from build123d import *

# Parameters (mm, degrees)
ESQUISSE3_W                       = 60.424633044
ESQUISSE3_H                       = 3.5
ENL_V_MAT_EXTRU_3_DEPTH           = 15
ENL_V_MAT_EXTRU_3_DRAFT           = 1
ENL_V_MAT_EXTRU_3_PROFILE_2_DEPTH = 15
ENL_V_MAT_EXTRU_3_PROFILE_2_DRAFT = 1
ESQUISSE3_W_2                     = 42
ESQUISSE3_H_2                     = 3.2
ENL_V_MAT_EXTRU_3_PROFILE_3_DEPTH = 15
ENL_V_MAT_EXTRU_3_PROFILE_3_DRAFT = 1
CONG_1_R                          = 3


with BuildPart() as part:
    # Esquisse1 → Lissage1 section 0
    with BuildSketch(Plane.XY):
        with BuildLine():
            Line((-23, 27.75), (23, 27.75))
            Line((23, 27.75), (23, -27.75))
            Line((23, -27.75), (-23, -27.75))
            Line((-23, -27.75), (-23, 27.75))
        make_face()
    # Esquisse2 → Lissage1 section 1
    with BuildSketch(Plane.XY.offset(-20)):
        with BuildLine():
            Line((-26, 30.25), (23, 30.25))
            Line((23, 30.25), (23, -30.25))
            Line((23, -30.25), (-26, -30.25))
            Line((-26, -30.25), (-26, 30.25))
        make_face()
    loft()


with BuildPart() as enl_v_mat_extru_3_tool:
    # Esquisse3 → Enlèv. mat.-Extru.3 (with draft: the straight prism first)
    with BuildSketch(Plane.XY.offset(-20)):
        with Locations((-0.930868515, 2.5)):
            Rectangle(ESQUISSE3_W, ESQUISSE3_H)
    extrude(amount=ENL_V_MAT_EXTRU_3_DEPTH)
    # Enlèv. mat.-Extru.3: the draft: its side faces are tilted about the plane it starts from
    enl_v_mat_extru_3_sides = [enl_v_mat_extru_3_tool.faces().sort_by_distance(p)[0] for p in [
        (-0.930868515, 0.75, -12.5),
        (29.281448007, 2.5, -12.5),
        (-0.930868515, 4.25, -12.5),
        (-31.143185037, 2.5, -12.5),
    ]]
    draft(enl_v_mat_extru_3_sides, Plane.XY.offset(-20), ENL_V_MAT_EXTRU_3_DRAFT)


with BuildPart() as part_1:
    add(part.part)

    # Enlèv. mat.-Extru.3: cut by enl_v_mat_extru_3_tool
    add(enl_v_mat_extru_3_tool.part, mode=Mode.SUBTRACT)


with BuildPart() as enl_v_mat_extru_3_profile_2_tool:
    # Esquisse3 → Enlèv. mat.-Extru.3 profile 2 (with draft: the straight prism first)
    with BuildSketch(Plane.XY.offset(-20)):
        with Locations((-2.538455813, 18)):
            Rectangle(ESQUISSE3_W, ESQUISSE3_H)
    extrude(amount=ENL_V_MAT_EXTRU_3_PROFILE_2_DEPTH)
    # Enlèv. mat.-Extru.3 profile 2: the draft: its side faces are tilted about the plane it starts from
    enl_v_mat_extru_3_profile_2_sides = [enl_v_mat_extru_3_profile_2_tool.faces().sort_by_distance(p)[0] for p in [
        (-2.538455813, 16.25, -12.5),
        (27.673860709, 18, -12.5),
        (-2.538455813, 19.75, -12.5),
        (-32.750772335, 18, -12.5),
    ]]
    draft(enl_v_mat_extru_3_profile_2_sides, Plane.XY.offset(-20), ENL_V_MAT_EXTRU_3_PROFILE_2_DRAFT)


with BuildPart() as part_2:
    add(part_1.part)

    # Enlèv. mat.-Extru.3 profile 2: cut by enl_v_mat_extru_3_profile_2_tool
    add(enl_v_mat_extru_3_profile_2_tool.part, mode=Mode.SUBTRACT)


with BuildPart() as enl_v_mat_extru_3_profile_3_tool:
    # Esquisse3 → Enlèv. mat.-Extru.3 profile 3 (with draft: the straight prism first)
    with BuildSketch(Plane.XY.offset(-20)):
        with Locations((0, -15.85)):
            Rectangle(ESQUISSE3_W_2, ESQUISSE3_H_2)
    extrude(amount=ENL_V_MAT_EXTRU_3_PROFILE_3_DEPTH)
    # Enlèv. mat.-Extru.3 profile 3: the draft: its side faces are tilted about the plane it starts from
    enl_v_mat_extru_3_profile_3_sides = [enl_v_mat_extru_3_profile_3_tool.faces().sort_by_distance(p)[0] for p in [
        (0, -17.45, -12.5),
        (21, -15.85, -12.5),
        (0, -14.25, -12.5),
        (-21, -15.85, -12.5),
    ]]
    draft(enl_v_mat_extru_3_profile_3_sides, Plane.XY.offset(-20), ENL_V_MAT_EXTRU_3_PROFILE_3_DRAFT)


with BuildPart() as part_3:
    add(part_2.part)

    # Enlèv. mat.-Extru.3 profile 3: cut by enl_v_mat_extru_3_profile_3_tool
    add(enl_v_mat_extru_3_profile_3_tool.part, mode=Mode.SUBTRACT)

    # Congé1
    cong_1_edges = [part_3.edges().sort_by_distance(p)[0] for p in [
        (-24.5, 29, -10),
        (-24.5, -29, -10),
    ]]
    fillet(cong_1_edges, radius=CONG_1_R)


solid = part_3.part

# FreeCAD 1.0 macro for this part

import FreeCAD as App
import Part
import Sketcher
from FreeCAD import Vector
Q = App.Units.Quantity


def edges_at(feature, points):
    """Names of the edges that pass closest to the given points."""
    edges = feature.Shape.Edges
    near = lambda p: min(range(len(edges)), key=lambda i: edges[i].distToShape(Part.Vertex(*p))[0])
    return sorted({f"Edge{near(p) + 1}" for p in points})


def faces_at(feature, points):
    """Names of the faces that lie closest to the given points."""
    faces = feature.Shape.Faces
    near = lambda p: min(range(len(faces)), key=lambda i: faces[i].distToShape(Part.Vertex(*p))[0])
    return sorted({f"Face{near(p) + 1}" for p in points})


def add_polygon(sketch, points):
    """Adds a closed chain of lines whose ends are joined by coincident constraints."""
    first, n = sketch.GeometryCount, len(points)
    for a, b in zip(points, points[1:] + points[:1]):
        sketch.addGeometry(Part.LineSegment(App.Vector(*a, 0), App.Vector(*b, 0)), False)
    for i in range(n):
        sketch.addConstraint(Sketcher.Constraint("Coincident", first + i, 2, first + (i + 1) % n, 1))

doc = App.newDocument("Part")
body = doc.addObject("PartDesign::Body", "Body")

sketch1 = body.newObject("Sketcher::SketchObject", "Sketch")
sketch1.AttachmentSupport = (doc.getObject("XY_Plane"), [""])
sketch1.MapMode = "FlatFace"
add_polygon(sketch1, [(23, 28), (-23, 28), (-23, -28), (23, -28)])
sketch1.addConstraint(Sketcher.Constraint("Horizontal", 0))
sketch1.addConstraint(Sketcher.Constraint("Vertical", 1))
sketch1.addConstraint(Sketcher.Constraint("Horizontal", 2))
sketch1.addConstraint(Sketcher.Constraint("Vertical", 3))
sketch1.addConstraint(Sketcher.Constraint("Symmetric", 0, 2, 2, 2, -1, 1))
sketch1.addConstraint(Sketcher.Constraint("DistanceX", 0, 2, 0, 1, Q("46 mm")))
sketch1.addConstraint(Sketcher.Constraint("DistanceY", 1, 2, 1, 1, Q("55.5 mm")))

sketch2 = body.newObject("Sketcher::SketchObject", "Sketch001")
sketch2.AttachmentSupport = (doc.getObject("XY_Plane"), [""])
sketch2.MapMode = "FlatFace"
sketch2.AttachmentOffset = App.Placement(Vector(0, 0, -20), App.Rotation())
add_polygon(sketch2, [(23, 30), (-26, 30), (-26, -30), (23, -30)])
sketch2.addConstraint(Sketcher.Constraint("Horizontal", 0))
sketch2.addConstraint(Sketcher.Constraint("Vertical", 1))
sketch2.addConstraint(Sketcher.Constraint("Horizontal", 2))
sketch2.addConstraint(Sketcher.Constraint("Vertical", 3))
sketch2.addConstraint(Sketcher.Constraint("DistanceX", 0, 2, 0, 1, Q("49 mm")))
sketch2.addConstraint(Sketcher.Constraint("DistanceY", 1, 2, 1, 1, Q("60.5 mm")))
sketch2.addConstraint(Sketcher.Constraint("DistanceX", 0, 2, -1, 1, Q("26 mm")))
sketch2.addConstraint(Sketcher.Constraint("DistanceY", -1, 1, 0, 2, Q("30.25 mm")))

additiveloft = body.newObject("PartDesign::AdditiveLoft", "AdditiveLoft")
additiveloft.Profile = sketch1
additiveloft.Sections = [sketch2]
body2 = doc.addObject("PartDesign::Body", "Body001")

sketch3 = body2.newObject("Sketcher::SketchObject", "Sketch002")
sketch3.AttachmentSupport = (doc.getObject("XY_Plane001"), [""])
sketch3.MapMode = "FlatFace"
sketch3.AttachmentOffset = App.Placement(Vector(0, 0, -20), App.Rotation())
add_polygon(sketch3, [(-31.1, 4.2), (-31.1, 0.8), (29.3, 0.8), (29.3, 4.2)])
sketch3.addConstraint(Sketcher.Constraint("Vertical", 0))
sketch3.addConstraint(Sketcher.Constraint("Horizontal", 1))
sketch3.addConstraint(Sketcher.Constraint("Vertical", 2))
sketch3.addConstraint(Sketcher.Constraint("Horizontal", 3))
sketch3.addConstraint(Sketcher.Constraint("DistanceY", 0, 2, 0, 1, Q("3.5 mm")))
sketch3.addConstraint(Sketcher.Constraint("DistanceY", -1, 1, 0, 2, Q("0.75 mm")))
sketch3.addConstraint(Sketcher.Constraint("DistanceX", 1, 1, 1, 2, Q("60.424633 mm")))
sketch3.addConstraint(Sketcher.Constraint("DistanceX", -1, 1, 1, 2, Q("29.281448 mm")))
pad1 = body2.newObject("PartDesign::Pad", "Pad")
pad1.Profile = sketch3
pad1.Length = 15
doc.recompute()

datumplane = body2.newObject("PartDesign::Plane", "DatumPlane")
datumplane.AttachmentSupport = (doc.getObject("XY_Plane001"), [""])
datumplane.MapMode = "FlatFace"
datumplane.AttachmentOffset = App.Placement(Vector(0, 0, -20), App.Rotation())
draft = body2.newObject("PartDesign::Draft", "Draft")
draft.Base = (pad1, faces_at(pad1, [
    (-0.931, 0.75, -12.5),
    (29.281, 2.5, -12.5),
    (-0.931, 4.25, -12.5),
    (-31.143, 2.5, -12.5),
]))
draft.NeutralPlane = (datumplane, [""])
draft.Angle = 1
draft.Reversed = False
doc.recompute()

boolean = body.newObject("PartDesign::Boolean", "Boolean")
boolean.Type = "Cut"
boolean.addObjects([body2])
body3 = doc.addObject("PartDesign::Body", "Body002")

sketch4 = body3.newObject("Sketcher::SketchObject", "Sketch003")
sketch4.AttachmentSupport = (doc.getObject("XY_Plane002"), [""])
sketch4.MapMode = "FlatFace"
sketch4.AttachmentOffset = App.Placement(Vector(0, 0, -20), App.Rotation())
add_polygon(sketch4, [(-32.8, 19.8), (-32.8, 16.2), (27.7, 16.2), (27.7, 19.8)])
sketch4.addConstraint(Sketcher.Constraint("Vertical", 0))
sketch4.addConstraint(Sketcher.Constraint("Horizontal", 1))
sketch4.addConstraint(Sketcher.Constraint("Vertical", 2))
sketch4.addConstraint(Sketcher.Constraint("Horizontal", 3))
sketch4.addConstraint(Sketcher.Constraint("DistanceY", 0, 2, 0, 1, Q("3.5 mm")))
sketch4.addConstraint(Sketcher.Constraint("DistanceY", -1, 1, 0, 2, Q("16.25 mm")))
sketch4.addConstraint(Sketcher.Constraint("DistanceX", 1, 1, 1, 2, Q("60.424633 mm")))
sketch4.addConstraint(Sketcher.Constraint("DistanceX", -1, 1, 1, 2, Q("27.673861 mm")))
pad2 = body3.newObject("PartDesign::Pad", "Pad001")
pad2.Profile = sketch4
pad2.Length = 15
doc.recompute()

datumplane2 = body3.newObject("PartDesign::Plane", "DatumPlane001")
datumplane2.AttachmentSupport = (doc.getObject("XY_Plane002"), [""])
datumplane2.MapMode = "FlatFace"
datumplane2.AttachmentOffset = App.Placement(Vector(0, 0, -20), App.Rotation())
draft2 = body3.newObject("PartDesign::Draft", "Draft001")
draft2.Base = (pad2, faces_at(pad2, [
    (-2.538, 16.25, -12.5),
    (27.674, 18, -12.5),
    (-2.538, 19.75, -12.5),
    (-32.751, 18, -12.5),
]))
draft2.NeutralPlane = (datumplane2, [""])
draft2.Angle = 1
draft2.Reversed = False
doc.recompute()

boolean2 = body.newObject("PartDesign::Boolean", "Boolean001")
boolean2.Type = "Cut"
boolean2.addObjects([body3])
body4 = doc.addObject("PartDesign::Body", "Body003")

sketch5 = body4.newObject("Sketcher::SketchObject", "Sketch004")
sketch5.AttachmentSupport = (doc.getObject("XY_Plane003"), [""])
sketch5.MapMode = "FlatFace"
sketch5.AttachmentOffset = App.Placement(Vector(0, 0, -20), App.Rotation())
add_polygon(sketch5, [(-21, -14.2), (-21, -17.4), (21, -17.4), (21, -14.2)])
sketch5.addConstraint(Sketcher.Constraint("Vertical", 0))
sketch5.addConstraint(Sketcher.Constraint("Horizontal", 1))
sketch5.addConstraint(Sketcher.Constraint("Vertical", 2))
sketch5.addConstraint(Sketcher.Constraint("Horizontal", 3))
sketch5.addConstraint(Sketcher.Constraint("DistanceX", 1, 1, 1, 2, Q("42 mm")))
sketch5.addConstraint(Sketcher.Constraint("DistanceY", 0, 2, 0, 1, Q("3.2 mm")))
sketch5.addConstraint(Sketcher.Constraint("DistanceX", 0, 2, -1, 1, Q("21 mm")))
sketch5.addConstraint(Sketcher.Constraint("DistanceY", 0, 2, -1, 1, Q("17.45 mm")))
pad3 = body4.newObject("PartDesign::Pad", "Pad002")
pad3.Profile = sketch5
pad3.Length = 15
doc.recompute()

datumplane3 = body4.newObject("PartDesign::Plane", "DatumPlane002")
datumplane3.AttachmentSupport = (doc.getObject("XY_Plane003"), [""])
datumplane3.MapMode = "FlatFace"
datumplane3.AttachmentOffset = App.Placement(Vector(0, 0, -20), App.Rotation())
draft3 = body4.newObject("PartDesign::Draft", "Draft002")
draft3.Base = (pad3, faces_at(pad3, [
    (0, -17.45, -12.5),
    (21, -15.85, -12.5),
    (0, -14.25, -12.5),
    (-21, -15.85, -12.5),
]))
draft3.NeutralPlane = (datumplane3, [""])
draft3.Angle = 1
draft3.Reversed = False
doc.recompute()

boolean3 = body.newObject("PartDesign::Boolean", "Boolean002")
boolean3.Type = "Cut"
boolean3.addObjects([body4])
doc.recompute()

fillet = body.newObject("PartDesign::Fillet", "Fillet")
fillet.Base = (boolean3, edges_at(boolean3, [(-24.5, 29, -10), (-24.5, -29, -10)]))
fillet.Radius = 3

doc.recompute()
